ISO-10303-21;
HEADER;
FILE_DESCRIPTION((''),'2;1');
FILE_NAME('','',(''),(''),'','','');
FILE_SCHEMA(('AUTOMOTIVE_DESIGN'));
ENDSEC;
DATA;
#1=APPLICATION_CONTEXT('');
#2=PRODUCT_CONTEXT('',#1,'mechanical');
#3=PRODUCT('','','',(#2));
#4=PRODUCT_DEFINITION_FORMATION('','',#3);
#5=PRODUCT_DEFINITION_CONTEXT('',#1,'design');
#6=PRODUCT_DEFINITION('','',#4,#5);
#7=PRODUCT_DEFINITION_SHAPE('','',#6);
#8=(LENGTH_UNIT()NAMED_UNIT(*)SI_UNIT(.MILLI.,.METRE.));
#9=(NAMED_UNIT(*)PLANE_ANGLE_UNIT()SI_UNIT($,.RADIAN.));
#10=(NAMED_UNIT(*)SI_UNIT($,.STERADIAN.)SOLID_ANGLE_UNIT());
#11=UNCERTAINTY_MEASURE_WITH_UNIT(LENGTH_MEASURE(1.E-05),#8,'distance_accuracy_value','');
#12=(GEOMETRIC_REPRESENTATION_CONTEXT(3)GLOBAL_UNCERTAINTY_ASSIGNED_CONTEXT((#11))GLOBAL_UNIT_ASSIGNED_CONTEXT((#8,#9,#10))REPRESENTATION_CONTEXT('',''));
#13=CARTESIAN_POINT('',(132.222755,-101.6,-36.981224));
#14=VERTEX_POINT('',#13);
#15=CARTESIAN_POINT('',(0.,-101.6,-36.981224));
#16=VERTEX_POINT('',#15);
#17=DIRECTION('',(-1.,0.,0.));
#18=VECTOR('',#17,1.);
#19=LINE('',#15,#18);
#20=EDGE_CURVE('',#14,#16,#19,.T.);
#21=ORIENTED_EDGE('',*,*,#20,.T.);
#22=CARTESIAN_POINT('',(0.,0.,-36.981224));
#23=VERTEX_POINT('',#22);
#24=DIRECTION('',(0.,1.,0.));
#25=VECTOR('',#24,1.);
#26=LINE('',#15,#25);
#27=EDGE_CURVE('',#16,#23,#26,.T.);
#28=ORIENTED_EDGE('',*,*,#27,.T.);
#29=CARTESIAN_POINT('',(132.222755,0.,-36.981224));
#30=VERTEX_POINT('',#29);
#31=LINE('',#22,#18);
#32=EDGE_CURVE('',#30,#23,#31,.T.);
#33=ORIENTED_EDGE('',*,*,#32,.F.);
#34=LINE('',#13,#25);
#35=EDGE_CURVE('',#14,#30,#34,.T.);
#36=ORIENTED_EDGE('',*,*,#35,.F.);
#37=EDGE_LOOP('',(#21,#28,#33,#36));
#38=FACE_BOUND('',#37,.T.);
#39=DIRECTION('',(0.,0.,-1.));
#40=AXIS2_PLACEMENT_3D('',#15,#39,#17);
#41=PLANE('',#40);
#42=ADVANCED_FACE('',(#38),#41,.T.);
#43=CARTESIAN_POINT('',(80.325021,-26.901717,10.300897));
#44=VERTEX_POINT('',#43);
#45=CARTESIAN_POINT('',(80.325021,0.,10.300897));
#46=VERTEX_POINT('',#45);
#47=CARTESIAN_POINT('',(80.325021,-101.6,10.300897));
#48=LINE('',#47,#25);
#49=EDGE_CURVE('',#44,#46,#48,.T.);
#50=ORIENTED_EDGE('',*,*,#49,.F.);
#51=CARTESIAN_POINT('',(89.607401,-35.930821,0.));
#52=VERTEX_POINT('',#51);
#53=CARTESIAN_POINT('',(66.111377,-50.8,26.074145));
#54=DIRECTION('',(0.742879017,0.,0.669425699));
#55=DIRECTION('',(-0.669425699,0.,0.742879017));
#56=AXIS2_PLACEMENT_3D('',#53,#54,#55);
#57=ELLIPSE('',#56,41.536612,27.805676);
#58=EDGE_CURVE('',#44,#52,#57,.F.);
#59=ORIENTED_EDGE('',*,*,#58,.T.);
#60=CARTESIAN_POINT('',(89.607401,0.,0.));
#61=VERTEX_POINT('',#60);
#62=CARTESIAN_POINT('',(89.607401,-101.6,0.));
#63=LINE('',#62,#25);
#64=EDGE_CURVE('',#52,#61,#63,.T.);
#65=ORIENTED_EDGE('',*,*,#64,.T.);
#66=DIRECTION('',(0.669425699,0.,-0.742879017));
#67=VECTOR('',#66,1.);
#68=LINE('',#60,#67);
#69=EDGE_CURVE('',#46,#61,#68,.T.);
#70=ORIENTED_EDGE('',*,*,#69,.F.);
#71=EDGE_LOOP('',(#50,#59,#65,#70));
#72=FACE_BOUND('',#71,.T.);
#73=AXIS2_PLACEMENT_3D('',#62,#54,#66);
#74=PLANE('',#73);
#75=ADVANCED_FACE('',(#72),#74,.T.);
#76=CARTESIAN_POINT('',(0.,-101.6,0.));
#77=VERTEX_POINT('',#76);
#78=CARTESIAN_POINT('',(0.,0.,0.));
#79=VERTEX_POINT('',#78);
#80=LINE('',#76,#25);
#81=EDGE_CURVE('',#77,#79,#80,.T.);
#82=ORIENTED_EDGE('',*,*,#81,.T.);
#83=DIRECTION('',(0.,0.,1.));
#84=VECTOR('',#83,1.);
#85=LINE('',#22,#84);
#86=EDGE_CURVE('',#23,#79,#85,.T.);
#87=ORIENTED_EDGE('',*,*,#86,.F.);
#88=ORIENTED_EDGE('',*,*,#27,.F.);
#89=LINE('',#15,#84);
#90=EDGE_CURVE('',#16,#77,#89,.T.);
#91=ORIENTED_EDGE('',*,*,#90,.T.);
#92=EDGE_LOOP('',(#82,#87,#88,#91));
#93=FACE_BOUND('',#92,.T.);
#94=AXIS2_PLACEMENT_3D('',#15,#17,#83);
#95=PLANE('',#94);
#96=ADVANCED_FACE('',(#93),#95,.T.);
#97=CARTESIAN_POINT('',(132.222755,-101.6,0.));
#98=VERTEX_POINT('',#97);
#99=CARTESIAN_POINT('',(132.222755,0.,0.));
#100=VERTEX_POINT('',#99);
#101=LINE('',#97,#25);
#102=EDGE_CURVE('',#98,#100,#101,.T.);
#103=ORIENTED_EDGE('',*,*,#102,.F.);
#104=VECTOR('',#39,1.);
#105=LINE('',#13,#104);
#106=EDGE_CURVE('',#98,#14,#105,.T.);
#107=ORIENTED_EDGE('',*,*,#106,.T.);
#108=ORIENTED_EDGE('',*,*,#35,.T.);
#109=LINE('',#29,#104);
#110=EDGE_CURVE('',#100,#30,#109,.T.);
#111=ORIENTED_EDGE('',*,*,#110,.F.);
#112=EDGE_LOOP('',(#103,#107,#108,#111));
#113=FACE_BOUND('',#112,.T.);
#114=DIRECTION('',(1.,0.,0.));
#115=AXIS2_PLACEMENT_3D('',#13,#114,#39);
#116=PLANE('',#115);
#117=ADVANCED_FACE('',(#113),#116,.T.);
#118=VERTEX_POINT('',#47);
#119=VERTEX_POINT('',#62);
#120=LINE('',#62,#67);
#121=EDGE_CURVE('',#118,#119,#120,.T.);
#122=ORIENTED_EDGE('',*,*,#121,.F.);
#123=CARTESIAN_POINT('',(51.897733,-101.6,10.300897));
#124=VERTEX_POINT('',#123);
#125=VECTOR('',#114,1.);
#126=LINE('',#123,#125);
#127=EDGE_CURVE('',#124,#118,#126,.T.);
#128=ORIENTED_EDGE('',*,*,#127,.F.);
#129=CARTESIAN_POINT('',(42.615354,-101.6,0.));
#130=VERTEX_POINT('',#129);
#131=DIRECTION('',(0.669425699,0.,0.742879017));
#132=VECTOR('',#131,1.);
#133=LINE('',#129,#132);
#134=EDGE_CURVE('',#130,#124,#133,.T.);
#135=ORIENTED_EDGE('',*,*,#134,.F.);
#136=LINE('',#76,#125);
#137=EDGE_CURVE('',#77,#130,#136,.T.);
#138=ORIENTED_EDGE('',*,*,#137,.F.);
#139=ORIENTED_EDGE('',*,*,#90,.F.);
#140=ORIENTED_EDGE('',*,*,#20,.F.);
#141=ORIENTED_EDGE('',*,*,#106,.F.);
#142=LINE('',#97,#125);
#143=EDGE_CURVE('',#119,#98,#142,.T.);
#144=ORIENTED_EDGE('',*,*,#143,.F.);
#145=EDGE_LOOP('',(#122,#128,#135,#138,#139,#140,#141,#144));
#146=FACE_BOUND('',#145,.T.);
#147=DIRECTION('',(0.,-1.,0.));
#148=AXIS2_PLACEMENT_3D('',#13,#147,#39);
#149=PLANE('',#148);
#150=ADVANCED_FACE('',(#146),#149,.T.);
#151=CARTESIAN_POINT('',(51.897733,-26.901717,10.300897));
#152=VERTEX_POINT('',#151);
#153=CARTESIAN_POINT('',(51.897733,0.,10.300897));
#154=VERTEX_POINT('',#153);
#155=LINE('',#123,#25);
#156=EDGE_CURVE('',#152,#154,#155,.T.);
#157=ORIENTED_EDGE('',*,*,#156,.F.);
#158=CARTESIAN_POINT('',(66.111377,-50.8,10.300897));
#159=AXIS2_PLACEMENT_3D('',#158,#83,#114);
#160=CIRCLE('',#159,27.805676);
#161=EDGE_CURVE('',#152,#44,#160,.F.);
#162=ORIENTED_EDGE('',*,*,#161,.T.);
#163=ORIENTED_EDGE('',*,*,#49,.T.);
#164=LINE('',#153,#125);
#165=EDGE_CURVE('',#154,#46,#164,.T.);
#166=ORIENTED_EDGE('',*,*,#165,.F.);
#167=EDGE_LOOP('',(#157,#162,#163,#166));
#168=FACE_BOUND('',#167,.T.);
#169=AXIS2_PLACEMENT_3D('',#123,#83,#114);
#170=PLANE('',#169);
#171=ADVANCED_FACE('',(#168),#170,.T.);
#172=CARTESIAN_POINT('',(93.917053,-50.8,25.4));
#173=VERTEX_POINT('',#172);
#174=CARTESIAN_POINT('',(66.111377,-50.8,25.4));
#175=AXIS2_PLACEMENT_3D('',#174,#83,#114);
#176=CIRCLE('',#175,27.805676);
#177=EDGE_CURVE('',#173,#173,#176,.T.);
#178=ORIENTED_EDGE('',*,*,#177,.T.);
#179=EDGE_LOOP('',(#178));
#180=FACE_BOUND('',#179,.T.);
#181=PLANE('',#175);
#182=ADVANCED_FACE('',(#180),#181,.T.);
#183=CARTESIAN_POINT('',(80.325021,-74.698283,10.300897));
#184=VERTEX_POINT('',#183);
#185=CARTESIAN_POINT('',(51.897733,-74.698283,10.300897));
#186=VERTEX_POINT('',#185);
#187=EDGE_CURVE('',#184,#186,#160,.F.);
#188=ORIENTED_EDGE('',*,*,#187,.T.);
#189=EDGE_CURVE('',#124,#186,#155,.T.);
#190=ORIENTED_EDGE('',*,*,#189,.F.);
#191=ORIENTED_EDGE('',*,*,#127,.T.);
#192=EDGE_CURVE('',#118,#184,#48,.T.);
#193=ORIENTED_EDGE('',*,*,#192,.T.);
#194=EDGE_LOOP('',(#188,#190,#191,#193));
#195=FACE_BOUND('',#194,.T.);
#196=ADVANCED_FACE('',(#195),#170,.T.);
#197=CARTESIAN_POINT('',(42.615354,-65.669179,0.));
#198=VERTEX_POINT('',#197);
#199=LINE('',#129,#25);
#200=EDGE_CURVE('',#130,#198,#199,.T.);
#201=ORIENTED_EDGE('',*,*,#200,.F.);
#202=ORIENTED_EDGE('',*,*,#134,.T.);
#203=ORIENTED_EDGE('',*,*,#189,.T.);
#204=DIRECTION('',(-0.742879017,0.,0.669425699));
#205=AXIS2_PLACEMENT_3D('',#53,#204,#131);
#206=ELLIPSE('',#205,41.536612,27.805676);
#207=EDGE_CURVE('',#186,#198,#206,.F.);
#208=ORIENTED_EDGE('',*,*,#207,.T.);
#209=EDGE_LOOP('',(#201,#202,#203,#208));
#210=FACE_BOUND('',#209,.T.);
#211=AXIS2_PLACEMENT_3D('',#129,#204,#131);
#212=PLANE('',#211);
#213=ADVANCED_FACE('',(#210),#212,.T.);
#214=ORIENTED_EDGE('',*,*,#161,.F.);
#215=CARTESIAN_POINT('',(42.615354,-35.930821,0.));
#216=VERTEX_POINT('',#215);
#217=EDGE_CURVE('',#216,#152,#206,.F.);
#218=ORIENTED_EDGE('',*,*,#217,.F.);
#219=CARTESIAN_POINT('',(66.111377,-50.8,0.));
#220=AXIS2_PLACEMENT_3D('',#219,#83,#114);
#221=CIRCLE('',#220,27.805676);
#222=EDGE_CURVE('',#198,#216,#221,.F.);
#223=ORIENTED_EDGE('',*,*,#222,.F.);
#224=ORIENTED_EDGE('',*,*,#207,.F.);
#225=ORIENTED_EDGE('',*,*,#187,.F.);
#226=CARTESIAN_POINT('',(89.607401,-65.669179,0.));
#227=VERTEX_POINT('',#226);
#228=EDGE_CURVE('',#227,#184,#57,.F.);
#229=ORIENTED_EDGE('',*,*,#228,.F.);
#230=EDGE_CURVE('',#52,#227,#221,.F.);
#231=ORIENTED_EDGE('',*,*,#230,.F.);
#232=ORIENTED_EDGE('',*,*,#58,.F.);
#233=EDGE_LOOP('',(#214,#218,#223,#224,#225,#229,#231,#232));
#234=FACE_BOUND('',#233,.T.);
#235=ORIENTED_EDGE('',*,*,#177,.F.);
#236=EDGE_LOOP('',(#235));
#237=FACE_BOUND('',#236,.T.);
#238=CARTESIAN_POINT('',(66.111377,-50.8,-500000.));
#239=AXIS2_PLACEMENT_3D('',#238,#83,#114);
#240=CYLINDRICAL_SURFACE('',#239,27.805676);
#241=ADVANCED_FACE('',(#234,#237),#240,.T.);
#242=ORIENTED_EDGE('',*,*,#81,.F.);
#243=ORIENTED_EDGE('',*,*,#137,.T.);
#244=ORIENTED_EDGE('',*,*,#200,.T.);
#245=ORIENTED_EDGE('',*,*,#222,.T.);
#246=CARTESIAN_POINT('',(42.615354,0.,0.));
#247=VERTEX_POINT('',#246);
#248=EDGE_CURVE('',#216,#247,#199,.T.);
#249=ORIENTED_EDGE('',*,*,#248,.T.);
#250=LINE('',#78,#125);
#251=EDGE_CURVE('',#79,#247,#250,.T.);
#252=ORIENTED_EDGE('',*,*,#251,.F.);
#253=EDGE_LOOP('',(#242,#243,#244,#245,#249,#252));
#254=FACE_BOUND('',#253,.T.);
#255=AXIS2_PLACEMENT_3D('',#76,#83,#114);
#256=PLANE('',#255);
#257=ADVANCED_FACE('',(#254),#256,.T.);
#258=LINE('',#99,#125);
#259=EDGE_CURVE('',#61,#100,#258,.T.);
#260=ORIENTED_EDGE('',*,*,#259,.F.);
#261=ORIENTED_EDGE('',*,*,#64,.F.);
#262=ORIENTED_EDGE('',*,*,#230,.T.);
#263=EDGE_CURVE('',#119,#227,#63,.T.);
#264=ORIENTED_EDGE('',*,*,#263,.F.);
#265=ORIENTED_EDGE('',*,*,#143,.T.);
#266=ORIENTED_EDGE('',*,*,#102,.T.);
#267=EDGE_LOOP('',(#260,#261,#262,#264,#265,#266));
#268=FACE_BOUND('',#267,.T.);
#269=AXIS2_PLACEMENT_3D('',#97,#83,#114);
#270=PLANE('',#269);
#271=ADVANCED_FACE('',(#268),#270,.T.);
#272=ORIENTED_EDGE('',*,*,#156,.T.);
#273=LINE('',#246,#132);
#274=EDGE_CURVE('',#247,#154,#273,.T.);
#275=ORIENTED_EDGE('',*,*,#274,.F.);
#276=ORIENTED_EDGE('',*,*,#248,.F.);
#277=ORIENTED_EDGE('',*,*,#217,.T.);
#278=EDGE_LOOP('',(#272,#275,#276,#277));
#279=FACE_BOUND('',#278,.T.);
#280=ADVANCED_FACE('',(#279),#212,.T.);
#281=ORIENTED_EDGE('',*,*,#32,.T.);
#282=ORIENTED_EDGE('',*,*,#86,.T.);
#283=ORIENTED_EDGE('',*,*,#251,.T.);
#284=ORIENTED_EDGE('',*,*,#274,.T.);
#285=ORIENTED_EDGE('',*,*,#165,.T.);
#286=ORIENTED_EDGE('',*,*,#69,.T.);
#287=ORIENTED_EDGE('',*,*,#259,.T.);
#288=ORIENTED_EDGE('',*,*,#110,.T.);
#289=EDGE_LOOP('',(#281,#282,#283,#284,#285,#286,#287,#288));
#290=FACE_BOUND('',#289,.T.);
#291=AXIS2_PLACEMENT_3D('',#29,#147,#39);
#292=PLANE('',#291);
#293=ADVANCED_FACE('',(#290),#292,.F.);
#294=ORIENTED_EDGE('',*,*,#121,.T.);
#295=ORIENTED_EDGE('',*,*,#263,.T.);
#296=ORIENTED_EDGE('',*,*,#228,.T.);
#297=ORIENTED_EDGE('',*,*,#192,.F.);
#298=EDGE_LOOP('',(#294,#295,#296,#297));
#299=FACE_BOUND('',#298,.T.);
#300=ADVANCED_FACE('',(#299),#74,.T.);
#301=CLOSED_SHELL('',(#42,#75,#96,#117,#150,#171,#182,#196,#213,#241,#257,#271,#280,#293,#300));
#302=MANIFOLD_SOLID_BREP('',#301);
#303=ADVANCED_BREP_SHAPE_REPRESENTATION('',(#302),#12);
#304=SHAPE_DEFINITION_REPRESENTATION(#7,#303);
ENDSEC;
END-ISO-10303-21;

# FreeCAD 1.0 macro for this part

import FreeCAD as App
import Part
import Sketcher
Q = App.Units.Quantity

doc = App.newDocument("Part")
body = doc.addObject("PartDesign::Body", "Body")

sketch1 = doc.addObject("Sketcher::SketchObject", "Sketch")
body.addObject(sketch1)
sketch1.AttachmentSupport = (doc.XZ_Plane, [""])
sketch1.MapMode = "FlatFace"
sketch1.addGeometry([
    Part.LineSegment(App.Vector(0, -37, 0), App.Vector(0, 0, 0)),
    Part.LineSegment(App.Vector(0, 0, 0), App.Vector(43, 0, 0)),
    Part.LineSegment(App.Vector(43, 0, 0), App.Vector(52, 10, 0)),
    Part.LineSegment(App.Vector(52, 10, 0), App.Vector(80, 10, 0)),
    Part.LineSegment(App.Vector(80, 10, 0), App.Vector(90, 0, 0)),
    Part.LineSegment(App.Vector(90, 0, 0), App.Vector(132, 0, 0)),
    Part.LineSegment(App.Vector(132, 0, 0), App.Vector(132, -37, 0)),
    Part.LineSegment(App.Vector(132, -37, 0), App.Vector(0, -37, 0)),
], False)
sketch1.addConstraint([
    Sketcher.Constraint("Coincident", 0, 2, 1, 1),
    Sketcher.Constraint("Coincident", 1, 2, 2, 1),
    Sketcher.Constraint("Coincident", 2, 2, 3, 1),
    Sketcher.Constraint("Coincident", 3, 2, 4, 1),
    Sketcher.Constraint("Coincident", 4, 2, 5, 1),
    Sketcher.Constraint("Coincident", 5, 2, 6, 1),
    Sketcher.Constraint("Coincident", 6, 2, 7, 1),
    Sketcher.Constraint("Coincident", 7, 2, 0, 1),
    Sketcher.Constraint("Vertical", 0),
    Sketcher.Constraint("Horizontal", 1),
    Sketcher.Constraint("Horizontal", 3),
    Sketcher.Constraint("Horizontal", 5),
    Sketcher.Constraint("Vertical", 6),
    Sketcher.Constraint("Horizontal", 7),
    Sketcher.Constraint("Coincident", 0, 2, -1, 1),
    Sketcher.Constraint("PointOnObject", 4, 2, -1),
    Sketcher.Constraint("Equal", 1, 5),
    Sketcher.Constraint("Equal", 2, 4),
    Sketcher.Constraint("DistanceX", -1, 1, 4, 2, 89.607401),
    Sketcher.Constraint("DistanceX", 1, 1, 1, 2, 42.615354),
    Sketcher.Constraint("DistanceX", 3, 1, 3, 2, 28.427288),
    Sketcher.Constraint("DistanceY", 0, 1, 0, 2, 36.981224),
    Sketcher.Constraint("DistanceY", 6, 2, 3, 2, 47.282121),
])
pad1 = doc.addObject("PartDesign::Pad", "Pad")
body.addObject(pad1)
pad1.Profile = sketch1
pad1.Length = Q("4 in")

sketch2 = doc.addObject("Sketcher::SketchObject", "Sketch001")
body.addObject(sketch2)
sketch2.AttachmentSupport = (doc.XY_Plane, [""])
sketch2.MapMode = "FlatFace"
sketch2.AttachmentOffset = App.Placement(App.Vector(0, 0, 1 * 25.4), App.Rotation())
sketch2.addGeometry(Part.Circle(App.Vector(66, -51, 0), App.Vector(0, 0, 1), 28), False)
sketch2.addConstraint([
    Sketcher.Constraint("DistanceY", 0, 3, -1, 1, Q("2 in")),
    Sketcher.Constraint("Diameter", 0, 55.611351),
    Sketcher.Constraint("DistanceX", -1, 1, 0, 3, 66.111377),
])
pad2 = doc.addObject("PartDesign::Pad", "Pad001")
body.addObject(pad2)
pad2.Profile = sketch2
pad2.Length = Q("1 in")
pad2.Reversed = True

doc.recompute()
